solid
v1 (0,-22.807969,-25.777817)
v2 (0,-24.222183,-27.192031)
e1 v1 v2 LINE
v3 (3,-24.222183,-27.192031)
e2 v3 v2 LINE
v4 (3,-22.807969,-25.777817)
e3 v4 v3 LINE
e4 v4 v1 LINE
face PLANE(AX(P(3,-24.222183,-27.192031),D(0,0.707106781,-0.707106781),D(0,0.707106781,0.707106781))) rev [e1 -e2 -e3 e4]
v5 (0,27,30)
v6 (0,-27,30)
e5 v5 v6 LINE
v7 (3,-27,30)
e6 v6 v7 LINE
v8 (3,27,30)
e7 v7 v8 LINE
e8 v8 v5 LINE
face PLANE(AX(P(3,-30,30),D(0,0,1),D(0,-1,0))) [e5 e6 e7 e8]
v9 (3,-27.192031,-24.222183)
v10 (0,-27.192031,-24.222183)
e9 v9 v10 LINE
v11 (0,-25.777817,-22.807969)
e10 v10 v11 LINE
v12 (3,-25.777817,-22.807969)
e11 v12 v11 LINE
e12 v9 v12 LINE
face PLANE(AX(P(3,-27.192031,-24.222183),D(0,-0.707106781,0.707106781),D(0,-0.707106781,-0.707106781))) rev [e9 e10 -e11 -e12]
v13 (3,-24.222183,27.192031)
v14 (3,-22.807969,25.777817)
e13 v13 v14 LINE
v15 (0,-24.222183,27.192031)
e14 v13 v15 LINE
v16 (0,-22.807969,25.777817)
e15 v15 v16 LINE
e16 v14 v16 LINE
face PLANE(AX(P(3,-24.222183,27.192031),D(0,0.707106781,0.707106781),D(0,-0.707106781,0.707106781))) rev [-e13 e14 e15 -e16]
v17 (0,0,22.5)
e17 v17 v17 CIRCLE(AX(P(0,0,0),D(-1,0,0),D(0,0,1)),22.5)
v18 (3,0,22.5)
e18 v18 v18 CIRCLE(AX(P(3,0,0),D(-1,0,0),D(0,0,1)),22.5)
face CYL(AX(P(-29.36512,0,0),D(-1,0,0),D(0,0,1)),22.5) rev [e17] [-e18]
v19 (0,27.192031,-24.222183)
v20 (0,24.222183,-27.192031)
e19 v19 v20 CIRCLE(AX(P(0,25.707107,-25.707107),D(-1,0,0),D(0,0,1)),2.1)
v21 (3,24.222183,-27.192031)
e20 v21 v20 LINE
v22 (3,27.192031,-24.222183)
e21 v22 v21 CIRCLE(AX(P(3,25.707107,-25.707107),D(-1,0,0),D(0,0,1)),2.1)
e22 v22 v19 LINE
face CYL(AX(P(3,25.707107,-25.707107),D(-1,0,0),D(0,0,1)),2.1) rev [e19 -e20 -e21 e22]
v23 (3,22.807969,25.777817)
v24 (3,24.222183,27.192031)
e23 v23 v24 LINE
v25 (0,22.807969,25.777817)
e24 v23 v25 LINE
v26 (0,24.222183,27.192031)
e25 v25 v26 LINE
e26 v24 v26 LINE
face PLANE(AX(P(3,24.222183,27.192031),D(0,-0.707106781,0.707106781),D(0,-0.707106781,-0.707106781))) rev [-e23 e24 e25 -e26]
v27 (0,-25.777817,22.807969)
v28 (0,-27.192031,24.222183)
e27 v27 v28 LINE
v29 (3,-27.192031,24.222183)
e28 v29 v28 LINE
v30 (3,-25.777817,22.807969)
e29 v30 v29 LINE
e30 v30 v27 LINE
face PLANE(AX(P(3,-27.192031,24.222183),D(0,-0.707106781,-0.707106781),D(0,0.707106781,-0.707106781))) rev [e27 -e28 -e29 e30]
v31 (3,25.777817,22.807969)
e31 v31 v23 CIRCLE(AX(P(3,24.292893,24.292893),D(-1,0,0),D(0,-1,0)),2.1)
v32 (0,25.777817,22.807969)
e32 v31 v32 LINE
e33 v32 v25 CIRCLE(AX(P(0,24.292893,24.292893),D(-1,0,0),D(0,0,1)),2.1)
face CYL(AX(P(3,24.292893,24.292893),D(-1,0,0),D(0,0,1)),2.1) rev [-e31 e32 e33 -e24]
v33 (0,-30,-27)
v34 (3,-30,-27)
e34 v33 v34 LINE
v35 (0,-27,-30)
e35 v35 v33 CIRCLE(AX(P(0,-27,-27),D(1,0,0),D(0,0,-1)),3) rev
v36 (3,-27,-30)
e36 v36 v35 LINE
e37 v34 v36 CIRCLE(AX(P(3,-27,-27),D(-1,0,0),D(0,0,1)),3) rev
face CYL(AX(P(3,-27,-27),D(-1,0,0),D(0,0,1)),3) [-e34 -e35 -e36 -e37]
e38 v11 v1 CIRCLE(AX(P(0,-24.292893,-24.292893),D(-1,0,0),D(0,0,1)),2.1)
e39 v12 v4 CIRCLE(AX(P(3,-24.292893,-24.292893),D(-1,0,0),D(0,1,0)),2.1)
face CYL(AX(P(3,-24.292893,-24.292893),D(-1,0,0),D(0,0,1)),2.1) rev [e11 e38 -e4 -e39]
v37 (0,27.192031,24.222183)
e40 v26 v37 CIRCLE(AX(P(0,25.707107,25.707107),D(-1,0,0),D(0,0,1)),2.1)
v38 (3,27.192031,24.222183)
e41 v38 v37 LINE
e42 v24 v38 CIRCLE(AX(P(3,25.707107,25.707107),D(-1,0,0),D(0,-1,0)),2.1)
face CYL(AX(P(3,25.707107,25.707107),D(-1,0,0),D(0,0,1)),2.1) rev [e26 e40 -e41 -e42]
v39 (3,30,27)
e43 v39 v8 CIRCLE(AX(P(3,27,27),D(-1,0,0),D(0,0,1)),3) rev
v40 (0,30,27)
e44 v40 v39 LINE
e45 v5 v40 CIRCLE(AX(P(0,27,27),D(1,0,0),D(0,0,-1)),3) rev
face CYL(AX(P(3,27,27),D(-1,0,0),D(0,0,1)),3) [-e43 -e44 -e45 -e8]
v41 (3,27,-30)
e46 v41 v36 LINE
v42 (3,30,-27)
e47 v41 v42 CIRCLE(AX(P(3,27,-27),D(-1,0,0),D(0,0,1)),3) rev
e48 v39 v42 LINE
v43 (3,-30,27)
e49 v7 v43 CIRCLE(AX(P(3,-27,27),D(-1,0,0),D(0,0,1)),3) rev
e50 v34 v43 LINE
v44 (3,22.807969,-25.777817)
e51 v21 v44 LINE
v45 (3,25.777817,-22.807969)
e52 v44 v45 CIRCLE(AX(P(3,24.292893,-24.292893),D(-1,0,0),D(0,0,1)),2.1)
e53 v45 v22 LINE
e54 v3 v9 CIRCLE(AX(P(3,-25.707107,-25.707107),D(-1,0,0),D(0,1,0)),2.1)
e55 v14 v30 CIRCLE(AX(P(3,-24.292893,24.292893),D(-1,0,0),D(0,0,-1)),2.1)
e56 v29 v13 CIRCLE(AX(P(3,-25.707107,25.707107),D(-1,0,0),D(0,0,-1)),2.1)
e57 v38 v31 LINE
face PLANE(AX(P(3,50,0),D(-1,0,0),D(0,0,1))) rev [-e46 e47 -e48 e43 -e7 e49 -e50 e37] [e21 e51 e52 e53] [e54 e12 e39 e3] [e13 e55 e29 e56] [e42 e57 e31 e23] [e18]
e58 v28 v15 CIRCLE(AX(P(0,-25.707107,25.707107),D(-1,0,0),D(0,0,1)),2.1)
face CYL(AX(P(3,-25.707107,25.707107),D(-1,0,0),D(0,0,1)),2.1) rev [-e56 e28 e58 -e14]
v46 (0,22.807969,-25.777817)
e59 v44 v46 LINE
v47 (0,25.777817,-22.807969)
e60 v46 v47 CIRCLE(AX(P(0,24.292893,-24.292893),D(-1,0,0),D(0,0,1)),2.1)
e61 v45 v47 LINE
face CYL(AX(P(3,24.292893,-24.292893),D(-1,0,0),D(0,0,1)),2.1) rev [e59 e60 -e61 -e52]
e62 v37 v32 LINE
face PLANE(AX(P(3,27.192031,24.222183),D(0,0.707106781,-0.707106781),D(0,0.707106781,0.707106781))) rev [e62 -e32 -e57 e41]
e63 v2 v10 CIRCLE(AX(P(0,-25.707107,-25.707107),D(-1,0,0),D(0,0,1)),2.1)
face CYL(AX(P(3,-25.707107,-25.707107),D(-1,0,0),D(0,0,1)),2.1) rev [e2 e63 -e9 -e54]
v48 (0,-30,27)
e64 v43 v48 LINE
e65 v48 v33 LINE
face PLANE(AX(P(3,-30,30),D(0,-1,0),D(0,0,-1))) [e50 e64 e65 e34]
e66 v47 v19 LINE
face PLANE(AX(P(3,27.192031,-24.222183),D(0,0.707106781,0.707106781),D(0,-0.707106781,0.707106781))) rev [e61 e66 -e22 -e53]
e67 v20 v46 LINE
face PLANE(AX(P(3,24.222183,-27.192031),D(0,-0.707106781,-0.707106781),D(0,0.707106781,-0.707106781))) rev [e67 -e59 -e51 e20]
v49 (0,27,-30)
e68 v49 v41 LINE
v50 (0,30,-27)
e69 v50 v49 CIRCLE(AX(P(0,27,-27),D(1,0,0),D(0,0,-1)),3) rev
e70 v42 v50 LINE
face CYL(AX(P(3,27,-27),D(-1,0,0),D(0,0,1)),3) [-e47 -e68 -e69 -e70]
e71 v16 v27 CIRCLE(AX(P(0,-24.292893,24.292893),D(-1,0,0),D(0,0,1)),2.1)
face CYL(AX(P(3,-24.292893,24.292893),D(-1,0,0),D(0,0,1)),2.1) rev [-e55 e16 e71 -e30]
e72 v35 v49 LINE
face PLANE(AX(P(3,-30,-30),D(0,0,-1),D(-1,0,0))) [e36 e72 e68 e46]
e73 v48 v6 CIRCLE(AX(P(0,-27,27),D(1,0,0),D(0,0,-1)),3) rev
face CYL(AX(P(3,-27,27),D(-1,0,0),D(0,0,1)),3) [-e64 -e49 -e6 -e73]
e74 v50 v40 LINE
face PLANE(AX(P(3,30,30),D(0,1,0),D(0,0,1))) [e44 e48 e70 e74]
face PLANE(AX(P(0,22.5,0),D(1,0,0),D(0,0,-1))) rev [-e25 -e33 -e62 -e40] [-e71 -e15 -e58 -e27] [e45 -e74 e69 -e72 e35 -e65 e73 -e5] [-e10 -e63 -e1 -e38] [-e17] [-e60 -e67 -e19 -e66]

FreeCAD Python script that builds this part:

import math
import FreeCAD as App
import Part
import Sketcher
from FreeCAD import Vector
Q = App.Units.Quantity


def edges_at(feature, points):
    """Names of the edges that pass closest to the given points."""
    edges = feature.Shape.Edges
    near = lambda p: min(range(len(edges)), key=lambda i: edges[i].distToShape(Part.Vertex(*p))[0])
    return sorted({f"Edge{near(p) + 1}" for p in points})


def add_polygon(sketch, points):
    """Adds a closed chain of lines whose ends are joined by coincident constraints."""
    first, n = sketch.GeometryCount, len(points)
    for a, b in zip(points, points[1:] + points[:1]):
        sketch.addGeometry(Part.LineSegment(App.Vector(*a, 0), App.Vector(*b, 0)), False)
    for i in range(n):
        sketch.addConstraint(Sketcher.Constraint("Coincident", first + i, 2, first + (i + 1) % n, 1))

doc = App.newDocument("Part")
params = doc.addObject("Spreadsheet::Sheet", "Params")
for row, (alias, value) in enumerate([
    ("sketch1_width", "3 mm"),
    ("sketch1_height", "27.5 mm"),
    ("revolution_angle", "360 deg"),
    ("sketch2_diameter", "100 mm"),
    ("sketch2_width", "60 mm"),
    ("sketch3_radius", "2.1 mm"),
    ("sketch3_length", "2 mm"),
    ("pocket2_length", "87.064681 mm"),
    ("fillet_radius", "3 mm"),
], start=1):
    params.set(f"A{row}", alias)
    params.set(f"B{row}", "=" + value)
    params.setAlias(f"B{row}", alias)

body = doc.addObject("PartDesign::Body", "Body")

# Sketch on XY plane
sketch1 = body.newObject("Sketcher::SketchObject", "Sketch")
sketch1.AttachmentSupport = (doc.getObject("XY_Plane"), [""])
sketch1.MapMode = "FlatFace"
add_polygon(sketch1, [(0, 50), (0, 22.5), (3, 22.5), (3, 50)])  # lines 0-3
sketch1.addConstraint([
    Sketcher.Constraint("Vertical", 0),
    Sketcher.Constraint("Horizontal", 1),
    Sketcher.Constraint("Vertical", 2),
    Sketcher.Constraint("Horizontal", 3),
    Sketcher.Constraint("PointOnObject", 0, 2, -2),
    Sketcher.Constraint("DistanceX", 1, 1, 1, 2, Q("3 mm")),
    Sketcher.Constraint("DistanceY", 0, 2, 0, 1, Q("27.5 mm")),
    Sketcher.Constraint("DistanceY", -1, 1, 2, 2, Q("50 mm")),
])
sketch1.setExpression("Constraints[9]", "Params.sketch1_width")
sketch1.setExpression("Constraints[10]", "Params.sketch1_height")
revolution = body.newObject("PartDesign::Revolution", "Revolution")
revolution.Profile = sketch1
revolution.ReferenceAxis = (sketch1, ["H_Axis"])
revolution.setExpression("Angle", "Params.revolution_angle")

# Sketch on YZ plane
sketch2 = body.newObject("Sketcher::SketchObject", "Sketch001")
sketch2.AttachmentSupport = (doc.getObject("YZ_Plane"), [""])
sketch2.MapMode = "FlatFace"
sketch2.addGeometry(Part.Circle(Vector(0, 0, 0), Vector(0, 0, 1), 50), False)  # 0
add_polygon(sketch2, [(-30, 30), (-30, -30), (30, -30), (30, 30)])  # lines 1-4
sketch2.addConstraint([
    Sketcher.Constraint("Vertical", 1),
    Sketcher.Constraint("Horizontal", 2),
    Sketcher.Constraint("Vertical", 3),
    Sketcher.Constraint("Horizontal", 4),
    Sketcher.Constraint("Coincident", 0, 3, -1, 1),
    Sketcher.Constraint("Symmetric", 1, 2, 3, 2, -1, 1),
    Sketcher.Constraint("Equal", 4, 1),
    Sketcher.Constraint("Diameter", 0, Q("100 mm")),
    Sketcher.Constraint("DistanceX", 2, 1, 2, 2, Q("60 mm")),
])
sketch2.setExpression("Constraints[11]", "Params.sketch2_diameter")
sketch2.setExpression("Constraints[12]", "Params.sketch2_width")
pocket1 = body.newObject("PartDesign::Pocket", "Pocket")
pocket1.Profile = sketch2
pocket1.Type = "ThroughAll"
pocket1.Midplane = True

# Sketch on YZ plane
sketch3 = body.newObject("Sketcher::SketchObject", "Sketch002")
sketch3.AttachmentSupport = (doc.getObject("YZ_Plane"), [""])
sketch3.MapMode = "FlatFace"
sketch3.addGeometry([
    Part.LineSegment(Vector(24.2, -27.2, 0), Vector(22.8, -25.8, 0)),
    Part.ArcOfCircle(Part.Circle(Vector(24.3, -24.3, 0), Vector(0, 0, 1), 2.1), math.radians(45), math.radians(225)),
    Part.LineSegment(Vector(25.8, -22.8, 0), Vector(27.2, -24.2, 0)),
    Part.ArcOfCircle(Part.Circle(Vector(25.7, -25.7, 0), Vector(0, 0, 1), 2.1), math.radians(-135), math.radians(45)),
], False)
sketch3.addConstraint([
    Sketcher.Constraint("Tangent", 0, 2, 1, 2),
    Sketcher.Constraint("Tangent", 1, 1, 2, 1),
    Sketcher.Constraint("Tangent", 2, 2, 3, 2),
    Sketcher.Constraint("Tangent", 3, 1, 0, 1),
    Sketcher.Constraint("Equal", 1, 3),
    Sketcher.Constraint("Radius", 1, Q("2.1 mm")),
    Sketcher.Constraint("Angle", 0, Q("135 deg")),
    Sketcher.Constraint("Distance", 0, Q("2 mm")),
    Sketcher.Constraint("DistanceX", -1, 1, 0, 2, Q("22.807969 mm")),
    Sketcher.Constraint("DistanceY", 1, 1, -1, 1, Q("22.807969 mm")),
])
sketch3.setExpression("Constraints[5]", "Params.sketch3_radius")
sketch3.setExpression("Constraints[7]", "Params.sketch3_length")
pocket2 = body.newObject("PartDesign::Pocket", "Pocket001")
pocket2.Profile = sketch3
pocket2.setExpression("Length", "Params.pocket2_length")
pocket2.Midplane = True
doc.recompute()

polarpattern = body.newObject("PartDesign::PolarPattern", "PolarPattern")
polarpattern.Originals = [pocket2]
polarpattern.Axis = (doc.getObject("X_Axis"), [""])
polarpattern.Angle = 360
polarpattern.Occurrences = 4
body.Tip = polarpattern
doc.recompute()

fillet = body.newObject("PartDesign::Fillet", "Fillet")
fillet.Base = (polarpattern, edges_at(polarpattern, [
    (1.5, 30, -30),
    (1.5, 30, 30),
    (1.5, -30, 30),
    (1.5, -30, -30),
]))
fillet.setExpression("Radius", "Params.fillet_radius")

doc.recompute()
